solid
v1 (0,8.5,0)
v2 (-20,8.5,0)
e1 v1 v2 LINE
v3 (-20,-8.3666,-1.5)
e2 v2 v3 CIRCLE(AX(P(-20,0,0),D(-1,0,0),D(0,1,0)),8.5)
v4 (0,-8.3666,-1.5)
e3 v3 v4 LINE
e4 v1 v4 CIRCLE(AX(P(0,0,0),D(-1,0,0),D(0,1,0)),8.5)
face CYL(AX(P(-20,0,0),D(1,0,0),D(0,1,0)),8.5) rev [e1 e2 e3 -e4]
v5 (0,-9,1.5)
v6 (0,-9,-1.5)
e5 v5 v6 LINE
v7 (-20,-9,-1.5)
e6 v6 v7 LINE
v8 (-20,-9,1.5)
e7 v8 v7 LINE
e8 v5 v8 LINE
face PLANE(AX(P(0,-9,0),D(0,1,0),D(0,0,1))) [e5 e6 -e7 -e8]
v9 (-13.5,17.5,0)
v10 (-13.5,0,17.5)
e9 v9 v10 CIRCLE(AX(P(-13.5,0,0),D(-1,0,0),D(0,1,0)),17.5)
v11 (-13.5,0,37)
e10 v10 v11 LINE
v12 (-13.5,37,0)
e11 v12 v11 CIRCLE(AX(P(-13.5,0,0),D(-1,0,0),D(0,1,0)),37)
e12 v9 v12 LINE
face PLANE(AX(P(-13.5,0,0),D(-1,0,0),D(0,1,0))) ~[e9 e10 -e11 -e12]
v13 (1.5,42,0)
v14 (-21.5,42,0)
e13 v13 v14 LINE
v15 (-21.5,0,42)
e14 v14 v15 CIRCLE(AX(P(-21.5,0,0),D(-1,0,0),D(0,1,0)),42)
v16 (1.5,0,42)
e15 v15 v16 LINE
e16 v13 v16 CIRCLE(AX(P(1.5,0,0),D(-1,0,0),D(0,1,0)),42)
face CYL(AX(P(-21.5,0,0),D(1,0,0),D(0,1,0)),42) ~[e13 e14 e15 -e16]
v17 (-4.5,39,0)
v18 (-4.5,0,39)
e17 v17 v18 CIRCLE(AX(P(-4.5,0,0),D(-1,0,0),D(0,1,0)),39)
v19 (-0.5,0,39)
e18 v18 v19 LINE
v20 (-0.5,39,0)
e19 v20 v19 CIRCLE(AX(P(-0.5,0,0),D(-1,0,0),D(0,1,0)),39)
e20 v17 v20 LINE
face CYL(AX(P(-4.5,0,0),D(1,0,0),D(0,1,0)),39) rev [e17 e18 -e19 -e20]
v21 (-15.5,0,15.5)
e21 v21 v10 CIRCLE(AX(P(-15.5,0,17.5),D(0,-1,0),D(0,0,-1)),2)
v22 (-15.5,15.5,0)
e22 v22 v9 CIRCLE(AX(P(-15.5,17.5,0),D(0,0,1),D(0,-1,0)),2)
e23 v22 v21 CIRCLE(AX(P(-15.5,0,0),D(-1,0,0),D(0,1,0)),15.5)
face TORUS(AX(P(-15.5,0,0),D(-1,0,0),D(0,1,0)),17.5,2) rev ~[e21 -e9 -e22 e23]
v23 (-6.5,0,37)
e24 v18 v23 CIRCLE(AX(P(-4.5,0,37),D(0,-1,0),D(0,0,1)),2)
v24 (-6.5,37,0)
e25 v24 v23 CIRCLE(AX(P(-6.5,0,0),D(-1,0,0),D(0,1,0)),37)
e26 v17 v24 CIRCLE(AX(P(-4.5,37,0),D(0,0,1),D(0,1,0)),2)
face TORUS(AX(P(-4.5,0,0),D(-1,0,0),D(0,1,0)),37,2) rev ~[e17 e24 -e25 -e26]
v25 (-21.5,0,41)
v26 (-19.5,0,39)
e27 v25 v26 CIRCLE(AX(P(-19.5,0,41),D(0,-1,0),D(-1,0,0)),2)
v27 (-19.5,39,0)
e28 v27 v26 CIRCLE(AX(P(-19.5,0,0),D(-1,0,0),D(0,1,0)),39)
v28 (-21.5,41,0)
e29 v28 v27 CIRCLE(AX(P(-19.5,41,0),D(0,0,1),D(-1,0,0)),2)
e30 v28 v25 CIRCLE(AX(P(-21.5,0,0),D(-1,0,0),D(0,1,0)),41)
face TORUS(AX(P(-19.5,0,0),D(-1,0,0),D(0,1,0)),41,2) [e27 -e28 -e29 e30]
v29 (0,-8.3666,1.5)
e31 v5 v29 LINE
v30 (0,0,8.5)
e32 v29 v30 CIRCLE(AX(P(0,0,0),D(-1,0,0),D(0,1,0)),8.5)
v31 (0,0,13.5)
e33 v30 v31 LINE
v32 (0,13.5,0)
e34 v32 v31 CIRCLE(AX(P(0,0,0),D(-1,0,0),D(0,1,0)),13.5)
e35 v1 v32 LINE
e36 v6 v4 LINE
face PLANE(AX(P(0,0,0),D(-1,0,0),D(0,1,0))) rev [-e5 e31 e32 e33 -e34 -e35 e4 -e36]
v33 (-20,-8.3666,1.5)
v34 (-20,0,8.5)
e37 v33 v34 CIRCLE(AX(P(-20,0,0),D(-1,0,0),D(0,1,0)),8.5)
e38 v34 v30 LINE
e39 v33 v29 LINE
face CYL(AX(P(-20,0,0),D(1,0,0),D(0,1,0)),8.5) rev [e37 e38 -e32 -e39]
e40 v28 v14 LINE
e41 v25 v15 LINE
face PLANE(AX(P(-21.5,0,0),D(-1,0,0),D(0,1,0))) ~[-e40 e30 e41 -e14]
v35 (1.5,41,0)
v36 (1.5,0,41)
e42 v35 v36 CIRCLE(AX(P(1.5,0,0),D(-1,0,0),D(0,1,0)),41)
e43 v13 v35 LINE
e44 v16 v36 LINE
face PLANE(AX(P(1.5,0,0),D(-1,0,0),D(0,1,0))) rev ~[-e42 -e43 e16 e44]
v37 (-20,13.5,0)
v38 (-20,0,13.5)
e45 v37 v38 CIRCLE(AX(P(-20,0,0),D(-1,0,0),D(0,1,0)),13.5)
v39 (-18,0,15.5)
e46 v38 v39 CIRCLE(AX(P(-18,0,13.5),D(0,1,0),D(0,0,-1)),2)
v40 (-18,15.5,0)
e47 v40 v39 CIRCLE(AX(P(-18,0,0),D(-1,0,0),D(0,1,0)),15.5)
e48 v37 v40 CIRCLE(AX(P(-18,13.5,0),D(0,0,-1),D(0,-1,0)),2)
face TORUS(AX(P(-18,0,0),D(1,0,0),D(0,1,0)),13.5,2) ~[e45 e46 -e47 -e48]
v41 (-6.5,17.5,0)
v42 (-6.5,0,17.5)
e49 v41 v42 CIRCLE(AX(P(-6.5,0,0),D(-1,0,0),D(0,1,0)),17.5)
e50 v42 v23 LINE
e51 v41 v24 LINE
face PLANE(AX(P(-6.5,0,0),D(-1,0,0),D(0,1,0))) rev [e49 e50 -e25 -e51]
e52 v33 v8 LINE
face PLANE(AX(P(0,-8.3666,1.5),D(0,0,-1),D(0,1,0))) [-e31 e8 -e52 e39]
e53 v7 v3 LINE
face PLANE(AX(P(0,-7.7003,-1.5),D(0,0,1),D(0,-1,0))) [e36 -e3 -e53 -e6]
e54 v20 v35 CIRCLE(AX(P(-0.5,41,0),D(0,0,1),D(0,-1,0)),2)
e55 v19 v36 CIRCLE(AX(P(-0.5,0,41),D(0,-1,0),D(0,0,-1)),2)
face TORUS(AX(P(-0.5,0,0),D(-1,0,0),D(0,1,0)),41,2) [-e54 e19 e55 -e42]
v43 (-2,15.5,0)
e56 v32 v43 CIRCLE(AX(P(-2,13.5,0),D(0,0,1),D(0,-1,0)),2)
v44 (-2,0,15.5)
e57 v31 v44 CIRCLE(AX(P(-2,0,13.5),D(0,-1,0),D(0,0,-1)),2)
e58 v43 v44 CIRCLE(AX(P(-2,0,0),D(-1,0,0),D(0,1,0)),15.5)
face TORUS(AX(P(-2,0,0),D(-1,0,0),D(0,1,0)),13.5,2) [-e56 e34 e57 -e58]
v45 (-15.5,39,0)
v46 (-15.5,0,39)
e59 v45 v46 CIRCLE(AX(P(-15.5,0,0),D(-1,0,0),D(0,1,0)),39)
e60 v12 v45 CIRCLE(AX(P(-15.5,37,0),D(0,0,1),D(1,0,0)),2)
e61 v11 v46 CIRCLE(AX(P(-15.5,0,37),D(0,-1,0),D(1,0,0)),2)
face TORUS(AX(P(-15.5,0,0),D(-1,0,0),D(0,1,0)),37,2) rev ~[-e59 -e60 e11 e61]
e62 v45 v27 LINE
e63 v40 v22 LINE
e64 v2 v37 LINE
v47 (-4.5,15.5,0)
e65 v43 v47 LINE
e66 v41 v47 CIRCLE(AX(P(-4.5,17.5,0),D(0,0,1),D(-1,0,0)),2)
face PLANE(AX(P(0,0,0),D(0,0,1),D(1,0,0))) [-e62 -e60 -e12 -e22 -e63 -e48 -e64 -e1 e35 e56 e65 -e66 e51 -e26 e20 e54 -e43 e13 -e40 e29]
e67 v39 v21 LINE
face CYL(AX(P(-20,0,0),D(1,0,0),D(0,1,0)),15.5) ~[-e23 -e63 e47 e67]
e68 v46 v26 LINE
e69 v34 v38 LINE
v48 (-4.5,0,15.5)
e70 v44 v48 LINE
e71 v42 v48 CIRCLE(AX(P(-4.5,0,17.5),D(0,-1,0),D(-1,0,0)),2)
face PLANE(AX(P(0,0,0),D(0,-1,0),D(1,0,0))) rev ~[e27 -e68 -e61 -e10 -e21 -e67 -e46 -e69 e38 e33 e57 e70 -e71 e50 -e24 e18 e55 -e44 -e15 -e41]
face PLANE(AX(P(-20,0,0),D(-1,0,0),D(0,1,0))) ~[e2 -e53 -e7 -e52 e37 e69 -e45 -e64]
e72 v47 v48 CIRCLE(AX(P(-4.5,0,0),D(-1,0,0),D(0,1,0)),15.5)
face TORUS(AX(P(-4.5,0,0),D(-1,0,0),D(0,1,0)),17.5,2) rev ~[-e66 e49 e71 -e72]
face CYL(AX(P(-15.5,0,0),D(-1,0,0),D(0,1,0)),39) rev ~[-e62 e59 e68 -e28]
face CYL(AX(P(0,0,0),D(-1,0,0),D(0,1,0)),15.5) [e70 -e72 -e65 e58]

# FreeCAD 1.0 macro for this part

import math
import FreeCAD as App
import Part
import Sketcher


def edges_at(feature, points):
    """Names of the edges that pass closest to the given points."""
    edges = feature.Shape.Edges
    near = lambda p: min(range(len(edges)), key=lambda i: edges[i].distToShape(Part.Vertex(*p))[0])
    return sorted({f"Edge{near(p) + 1}" for p in points})

doc = App.newDocument("Part")
body = doc.addObject("PartDesign::Body", "Body")

sketch1 = doc.addObject("Sketcher::SketchObject", "Sketch")
body.addObject(sketch1)
sketch1.AttachmentSupport = (doc.XY_Plane, [""])
sketch1.MapMode = "FlatFace"
sketch1.addGeometry([
    Part.LineSegment(App.Vector(-20, 15.5, 0), App.Vector(-20, 8.5, 0)),
    Part.LineSegment(App.Vector(-20, 8.5, 0), App.Vector(0, 8.5, 0)),
    Part.LineSegment(App.Vector(0, 8.5, 0), App.Vector(0, 15.5, 0)),
    Part.LineSegment(App.Vector(0, 15.5, 0), App.Vector(-4.5, 15.5, 0)),
    Part.ArcOfCircle(Part.Circle(App.Vector(-4.5, 17.5, 0), App.Vector(0, 0, 1), 2), math.radians(180), math.radians(270)),
    Part.LineSegment(App.Vector(-6.5, 17.5, 0), App.Vector(-6.5, 37, 0)),
    Part.ArcOfCircle(Part.Circle(App.Vector(-4.5, 37, 0), App.Vector(0, 0, 1), 2), math.radians(90), math.radians(180)),
    Part.LineSegment(App.Vector(-4.5, 39, 0), App.Vector(-0.5, 39, 0)),
    Part.ArcOfCircle(Part.Circle(App.Vector(-0.5, 41, 0), App.Vector(0, 0, 1), 2), math.radians(-90), math.radians(0)),
    Part.LineSegment(App.Vector(1.5, 41, 0), App.Vector(1.5, 42, 0)),
    Part.LineSegment(App.Vector(1.5, 42, 0), App.Vector(-21.5, 42, 0)),
    Part.LineSegment(App.Vector(-21.5, 42, 0), App.Vector(-21.5, 41, 0)),
    Part.ArcOfCircle(Part.Circle(App.Vector(-19.5, 41, 0), App.Vector(0, 0, 1), 2), math.radians(180), math.radians(270)),
    Part.LineSegment(App.Vector(-19.5, 39, 0), App.Vector(-15.5, 39, 0)),
    Part.ArcOfCircle(Part.Circle(App.Vector(-15.5, 37, 0), App.Vector(0, 0, 1), 2), math.radians(0), math.radians(90)),
    Part.LineSegment(App.Vector(-13.5, 37, 0), App.Vector(-13.5, 17.5, 0)),
    Part.ArcOfCircle(Part.Circle(App.Vector(-15.5, 17.5, 0), App.Vector(0, 0, 1), 2), math.radians(-90), math.radians(0)),
    Part.LineSegment(App.Vector(-15.5, 15.5, 0), App.Vector(-20, 15.5, 0)),
], False)
sketch1.addConstraint([
    Sketcher.Constraint("Coincident", 0, 2, 1, 1),
    Sketcher.Constraint("Coincident", 1, 2, 2, 1),
    Sketcher.Constraint("Coincident", 2, 2, 3, 1),
    Sketcher.Constraint("Tangent", 3, 2, 4, 2),
    Sketcher.Constraint("Tangent", 4, 1, 5, 1),
    Sketcher.Constraint("Tangent", 5, 2, 6, 2),
    Sketcher.Constraint("Tangent", 6, 1, 7, 1),
    Sketcher.Constraint("Tangent", 7, 2, 8, 1),
    Sketcher.Constraint("Tangent", 8, 2, 9, 1),
    Sketcher.Constraint("Coincident", 9, 2, 10, 1),
    Sketcher.Constraint("Coincident", 10, 2, 11, 1),
    Sketcher.Constraint("Tangent", 11, 2, 12, 1),
    Sketcher.Constraint("Tangent", 12, 2, 13, 1),
    Sketcher.Constraint("Tangent", 13, 2, 14, 2),
    Sketcher.Constraint("Tangent", 14, 1, 15, 1),
    Sketcher.Constraint("Tangent", 15, 2, 16, 2),
    Sketcher.Constraint("Tangent", 16, 1, 17, 1),
    Sketcher.Constraint("Coincident", 17, 2, 0, 1),
    Sketcher.Constraint("Vertical", 0),
    Sketcher.Constraint("Horizontal", 1),
    Sketcher.Constraint("Vertical", 2),
    Sketcher.Constraint("Horizontal", 3),
    Sketcher.Constraint("Vertical", 5),
    Sketcher.Constraint("Horizontal", 7),
    Sketcher.Constraint("Vertical", 9),
    Sketcher.Constraint("Horizontal", 10),
    Sketcher.Constraint("Vertical", 11),
    Sketcher.Constraint("Horizontal", 13),
    Sketcher.Constraint("Vertical", 15),
    Sketcher.Constraint("Horizontal", 17),
    Sketcher.Constraint("Equal", 4, 6),
    Sketcher.Constraint("Equal", 6, 8),
    Sketcher.Constraint("Equal", 8, 12),
    Sketcher.Constraint("Equal", 12, 14),
    Sketcher.Constraint("Equal", 14, 16),
    Sketcher.Constraint("PointOnObject", 1, 2, -2),
    Sketcher.Constraint("Horizontal", 8, 3, 12, 3),
    Sketcher.Constraint("Horizontal", 4, 3, 16, 3),
    Sketcher.Constraint("Equal", 7, 13),
    Sketcher.Constraint("Equal", 3, 17),
    Sketcher.Constraint("Radius", 4, 2.0),
    Sketcher.Constraint("DistanceX", 1, 1, 1, 2, 20.0),
    Sketcher.Constraint("DistanceX", 10, 2, 10, 1, 23.0),
    Sketcher.Constraint("DistanceY", 0, 2, 0, 1, 7.0),
    Sketcher.Constraint("DistanceX", 5, 2, 8, 2, 8.0),
    Sketcher.Constraint("DistanceY", 9, 1, 9, 2, 1.0),
    Sketcher.Constraint("DistanceY", 5, 1, 5, 2, 19.5),
    Sketcher.Constraint("DistanceY", -1, 1, 6, 3, 37.0),
])
revolution = doc.addObject("PartDesign::Revolution", "Revolution")
body.addObject(revolution)
revolution.Profile = sketch1
revolution.ReferenceAxis = (sketch1, ["H_Axis"])
revolution.Angle = 270
revolution.Reversed = True
doc.recompute()

fillet = doc.addObject("PartDesign::Fillet", "Fillet")
body.addObject(fillet)
fillet.Base = (revolution, edges_at(revolution, [(0, -10.96, -10.96), (-20, -10.96, -10.96)]))
fillet.Radius = 2

sketch2 = doc.addObject("Sketcher::SketchObject", "Sketch001")
body.addObject(sketch2)
sketch2.AttachmentSupport = (doc.YZ_Plane, [""])
sketch2.MapMode = "FlatFace"
sketch2.addGeometry([
    Part.LineSegment(App.Vector(-7.7003, 1.5, 0), App.Vector(-9, 1.5, 0)),
    Part.LineSegment(App.Vector(-9, 1.5, 0), App.Vector(-9, -1.5, 0)),
    Part.LineSegment(App.Vector(-9, -1.5, 0), App.Vector(-7.7003, -1.5, 0)),
    Part.LineSegment(App.Vector(-7.7003, -1.5, 0), App.Vector(-7.7003, 1.5, 0)),
], False)
sketch2.addConstraint([
    Sketcher.Constraint("Coincident", 0, 2, 1, 1),
    Sketcher.Constraint("Coincident", 1, 2, 2, 1),
    Sketcher.Constraint("Coincident", 2, 2, 3, 1),
    Sketcher.Constraint("Coincident", 3, 2, 0, 1),
    Sketcher.Constraint("Horizontal", 0),
    Sketcher.Constraint("Vertical", 1),
    Sketcher.Constraint("Horizontal", 2),
    Sketcher.Constraint("Vertical", 3),
    Sketcher.Constraint("DistanceY", -1, 1, 0, 2, 1.5),
    Sketcher.Constraint("DistanceY", 1, 2, -1, 1, 1.5),
    Sketcher.Constraint("DistanceX", 0, 2, -1, 1, 9.0),
    Sketcher.Constraint("DistanceX", 0, 2, 0, 1, 1.2997),
])
pocket1 = doc.addObject("PartDesign::Pocket", "Pocket")
body.addObject(pocket1)
pocket1.Profile = sketch2
pocket1.Length = 20

doc.recompute()
